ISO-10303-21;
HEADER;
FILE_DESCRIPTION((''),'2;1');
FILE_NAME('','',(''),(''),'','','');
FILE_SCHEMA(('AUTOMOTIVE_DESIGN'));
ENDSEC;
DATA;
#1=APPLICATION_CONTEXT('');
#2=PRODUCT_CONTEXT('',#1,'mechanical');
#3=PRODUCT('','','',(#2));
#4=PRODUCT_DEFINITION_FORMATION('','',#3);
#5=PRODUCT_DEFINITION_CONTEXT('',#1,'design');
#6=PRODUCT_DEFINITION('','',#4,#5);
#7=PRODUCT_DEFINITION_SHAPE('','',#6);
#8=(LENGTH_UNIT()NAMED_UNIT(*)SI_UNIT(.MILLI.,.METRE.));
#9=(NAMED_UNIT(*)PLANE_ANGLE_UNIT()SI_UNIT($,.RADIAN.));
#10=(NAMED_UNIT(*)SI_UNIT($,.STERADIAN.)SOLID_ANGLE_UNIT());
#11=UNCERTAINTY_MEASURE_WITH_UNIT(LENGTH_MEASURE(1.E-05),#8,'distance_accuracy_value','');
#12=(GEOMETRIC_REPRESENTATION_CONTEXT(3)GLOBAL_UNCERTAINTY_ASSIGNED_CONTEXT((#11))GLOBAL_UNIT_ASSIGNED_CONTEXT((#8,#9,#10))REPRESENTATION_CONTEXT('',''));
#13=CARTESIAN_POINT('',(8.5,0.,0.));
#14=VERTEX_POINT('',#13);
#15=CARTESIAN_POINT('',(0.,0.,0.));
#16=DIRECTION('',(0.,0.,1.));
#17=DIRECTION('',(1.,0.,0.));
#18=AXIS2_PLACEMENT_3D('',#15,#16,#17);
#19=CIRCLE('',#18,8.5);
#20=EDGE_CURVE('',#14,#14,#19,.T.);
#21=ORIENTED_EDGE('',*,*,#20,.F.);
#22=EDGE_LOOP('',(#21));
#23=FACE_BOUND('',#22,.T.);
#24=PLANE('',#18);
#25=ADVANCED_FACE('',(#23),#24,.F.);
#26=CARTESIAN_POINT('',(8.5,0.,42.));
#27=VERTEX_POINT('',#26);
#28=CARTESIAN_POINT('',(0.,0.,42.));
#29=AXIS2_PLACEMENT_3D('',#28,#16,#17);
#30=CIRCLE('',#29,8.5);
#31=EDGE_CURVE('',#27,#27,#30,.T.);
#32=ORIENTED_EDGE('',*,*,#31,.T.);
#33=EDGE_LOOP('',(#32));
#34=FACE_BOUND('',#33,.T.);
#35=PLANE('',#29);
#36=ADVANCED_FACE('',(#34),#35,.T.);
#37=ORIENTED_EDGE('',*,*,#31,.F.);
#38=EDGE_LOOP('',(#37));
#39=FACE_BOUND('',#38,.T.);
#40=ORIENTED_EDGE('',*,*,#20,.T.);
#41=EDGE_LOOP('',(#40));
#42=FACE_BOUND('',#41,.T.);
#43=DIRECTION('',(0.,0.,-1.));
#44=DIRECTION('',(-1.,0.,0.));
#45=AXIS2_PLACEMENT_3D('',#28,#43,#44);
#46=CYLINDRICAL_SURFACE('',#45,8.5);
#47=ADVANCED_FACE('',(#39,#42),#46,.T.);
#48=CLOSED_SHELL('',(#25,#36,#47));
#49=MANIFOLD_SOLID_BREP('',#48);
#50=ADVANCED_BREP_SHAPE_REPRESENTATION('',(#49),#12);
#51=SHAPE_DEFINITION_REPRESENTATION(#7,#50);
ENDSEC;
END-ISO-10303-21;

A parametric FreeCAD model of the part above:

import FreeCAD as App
import Part
import Sketcher

V = App.Vector

doc = App.newDocument("Part")
body = doc.addObject("PartDesign::Body", "Body")

sketch1 = doc.addObject("Sketcher::SketchObject", "Sketch")
body.addObject(sketch1)
sketch1.AttachmentSupport = (doc.XY_Plane, [""])
sketch1.MapMode = "FlatFace"
sketch1.addGeometry(Part.Circle(V(0, 0, 0), V(0, 0, 1), 8), False)
sketch1.addConstraint([
    Sketcher.Constraint("Coincident", 0, 3, -1, 1),
    Sketcher.Constraint("Diameter", 0, 17.0),
])
pad1 = doc.addObject("PartDesign::Pad", "Pad")
body.addObject(pad1)
pad1.Profile = sketch1
pad1.Length = 42

doc.recompute()
